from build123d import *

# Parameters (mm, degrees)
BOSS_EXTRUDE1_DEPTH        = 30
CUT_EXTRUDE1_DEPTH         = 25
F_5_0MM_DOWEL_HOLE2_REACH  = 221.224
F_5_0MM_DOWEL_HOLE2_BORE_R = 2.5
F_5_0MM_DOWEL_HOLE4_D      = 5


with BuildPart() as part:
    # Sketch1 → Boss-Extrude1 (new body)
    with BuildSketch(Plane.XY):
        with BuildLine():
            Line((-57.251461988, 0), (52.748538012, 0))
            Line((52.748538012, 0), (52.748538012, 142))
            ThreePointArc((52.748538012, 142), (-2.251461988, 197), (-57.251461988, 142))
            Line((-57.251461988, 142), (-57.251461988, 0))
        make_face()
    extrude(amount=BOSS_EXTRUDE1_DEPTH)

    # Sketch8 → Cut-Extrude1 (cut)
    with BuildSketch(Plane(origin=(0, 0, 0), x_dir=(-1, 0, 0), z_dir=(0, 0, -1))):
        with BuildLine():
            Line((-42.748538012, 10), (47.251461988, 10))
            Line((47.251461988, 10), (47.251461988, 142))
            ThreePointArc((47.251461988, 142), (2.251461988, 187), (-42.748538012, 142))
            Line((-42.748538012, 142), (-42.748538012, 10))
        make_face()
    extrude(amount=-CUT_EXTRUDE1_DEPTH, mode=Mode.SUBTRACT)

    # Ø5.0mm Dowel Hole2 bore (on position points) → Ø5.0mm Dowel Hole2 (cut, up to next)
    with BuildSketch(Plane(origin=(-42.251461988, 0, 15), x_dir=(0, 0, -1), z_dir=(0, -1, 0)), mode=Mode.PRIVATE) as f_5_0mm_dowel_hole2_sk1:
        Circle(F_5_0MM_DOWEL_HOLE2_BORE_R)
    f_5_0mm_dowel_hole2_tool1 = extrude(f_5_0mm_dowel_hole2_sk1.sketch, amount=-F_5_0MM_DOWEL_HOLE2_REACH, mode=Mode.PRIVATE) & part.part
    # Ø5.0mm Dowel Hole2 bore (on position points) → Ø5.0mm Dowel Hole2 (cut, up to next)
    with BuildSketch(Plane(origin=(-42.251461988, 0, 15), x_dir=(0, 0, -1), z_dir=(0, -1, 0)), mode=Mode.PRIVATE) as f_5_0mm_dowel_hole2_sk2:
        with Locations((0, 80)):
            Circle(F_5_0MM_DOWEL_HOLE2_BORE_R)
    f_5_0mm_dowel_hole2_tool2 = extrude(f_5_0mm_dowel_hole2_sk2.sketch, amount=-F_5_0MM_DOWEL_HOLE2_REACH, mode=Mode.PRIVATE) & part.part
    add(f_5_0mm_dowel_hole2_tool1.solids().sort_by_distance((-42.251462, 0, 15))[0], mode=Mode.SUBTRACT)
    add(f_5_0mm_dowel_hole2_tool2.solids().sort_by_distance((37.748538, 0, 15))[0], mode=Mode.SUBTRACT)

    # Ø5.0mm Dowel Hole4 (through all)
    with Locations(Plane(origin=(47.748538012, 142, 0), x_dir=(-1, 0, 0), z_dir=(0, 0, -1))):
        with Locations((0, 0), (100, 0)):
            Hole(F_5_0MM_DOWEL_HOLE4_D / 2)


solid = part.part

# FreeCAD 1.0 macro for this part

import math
import FreeCAD as App
import Part
import Sketcher
from FreeCAD import Vector

doc = App.newDocument("Part")
body = doc.addObject("PartDesign::Body", "Body")

# Sketch on XY plane
sketch1 = doc.addObject("Sketcher::SketchObject", "Sketch")
body.addObject(sketch1)
sketch1.AttachmentSupport = (doc.XY_Plane, [""])
sketch1.MapMode = "FlatFace"
sketch1.addGeometry(Part.LineSegment(Vector(-57, 0, 0), Vector(53, 0, 0)), False)
sketch1.addGeometry(Part.LineSegment(Vector(53, 0, 0), Vector(53, 142, 0)), False)
sketch1.addGeometry(Part.ArcOfCircle(Part.Circle(Vector(-2, 142, 0), Vector(0, 0, 1), 55), math.radians(0), math.radians(180)), False)
sketch1.addGeometry(Part.LineSegment(Vector(-57, 142, 0), Vector(-57, 0, 0)), False)
sketch1.addConstraint(Sketcher.Constraint("Coincident", 0, 2, 1, 1))
sketch1.addConstraint(Sketcher.Constraint("Tangent", 1, 2, 2, 1))
sketch1.addConstraint(Sketcher.Constraint("Tangent", 2, 2, 3, 1))
sketch1.addConstraint(Sketcher.Constraint("Coincident", 3, 2, 0, 1))
sketch1.addConstraint(Sketcher.Constraint("Horizontal", 0))
sketch1.addConstraint(Sketcher.Constraint("Vertical", 1))
sketch1.addConstraint(Sketcher.Constraint("Vertical", 3))
sketch1.addConstraint(Sketcher.Constraint("PointOnObject", 0, 2, -1))
sketch1.addConstraint(Sketcher.Constraint("Radius", 2, 55.0))
sketch1.addConstraint(Sketcher.Constraint("DistanceY", 1, 1, 1, 2, 142.0))
sketch1.addConstraint(Sketcher.Constraint("DistanceX", 2, 3, -1, 1, 2.251462))
pad1 = doc.addObject("PartDesign::Pad", "Pad")
body.addObject(pad1)
pad1.Profile = sketch1
pad1.Length = 30

# Sketch on XY plane
sketch2 = doc.addObject("Sketcher::SketchObject", "Sketch001")
body.addObject(sketch2)
sketch2.AttachmentSupport = (doc.XY_Plane, [""])
sketch2.MapMode = "FlatFace"
sketch2.addGeometry(Part.LineSegment(Vector(43, 10, 0), Vector(-47, 10, 0)), False)
sketch2.addGeometry(Part.LineSegment(Vector(-47, 10, 0), Vector(-47, 142, 0)), False)
sketch2.addGeometry(Part.ArcOfCircle(Part.Circle(Vector(-2, 142, 0), Vector(0, 0, 1), 45), math.radians(0), math.radians(180)), False)
sketch2.addGeometry(Part.LineSegment(Vector(43, 142, 0), Vector(43, 10, 0)), False)
sketch2.addConstraint(Sketcher.Constraint("Coincident", 0, 2, 1, 1))
sketch2.addConstraint(Sketcher.Constraint("Tangent", 1, 2, 2, 2))
sketch2.addConstraint(Sketcher.Constraint("Tangent", 2, 1, 3, 1))
sketch2.addConstraint(Sketcher.Constraint("Coincident", 3, 2, 0, 1))
sketch2.addConstraint(Sketcher.Constraint("Horizontal", 0))
sketch2.addConstraint(Sketcher.Constraint("Vertical", 1))
sketch2.addConstraint(Sketcher.Constraint("Vertical", 3))
sketch2.addConstraint(Sketcher.Constraint("Radius", 2, 45.0))
sketch2.addConstraint(Sketcher.Constraint("DistanceY", 1, 1, 1, 2, 132.0))
sketch2.addConstraint(Sketcher.Constraint("DistanceY", -1, 1, 2, 3, 142.0))
sketch2.addConstraint(Sketcher.Constraint("DistanceX", 2, 3, -1, 1, 2.251462))
pocket1 = doc.addObject("PartDesign::Pocket", "Pocket")
body.addObject(pocket1)
pocket1.Profile = sketch2
pocket1.Length = 25
pocket1.Reversed = True

# Sketch on XZ plane
sketch3 = doc.addObject("Sketcher::SketchObject", "Sketch002")
body.addObject(sketch3)
sketch3.AttachmentSupport = (doc.XZ_Plane, [""])
sketch3.MapMode = "FlatFace"
sketch3.addGeometry(Part.Circle(Vector(-42.3, 15, 0), Vector(0, 0, 1), 2.5), False)
sketch3.addConstraint(Sketcher.Constraint("Diameter", 0, 5.0))
sketch3.addConstraint(Sketcher.Constraint("DistanceY", -1, 1, 0, 3, 15.0))
sketch3.addConstraint(Sketcher.Constraint("DistanceX", 0, 3, -1, 1, 42.251462))
pocket2 = doc.addObject("PartDesign::Pocket", "Pocket001")
body.addObject(pocket2)
pocket2.Profile = sketch3
pocket2.Type = "UpToFirst"

# Sketch on XZ plane
sketch4 = doc.addObject("Sketcher::SketchObject", "Sketch003")
body.addObject(sketch4)
sketch4.AttachmentSupport = (doc.XZ_Plane, [""])
sketch4.MapMode = "FlatFace"
sketch4.addGeometry(Part.Circle(Vector(37.7, 15, 0), Vector(0, 0, 1), 2.5), False)
sketch4.addConstraint(Sketcher.Constraint("Diameter", 0, 5.0))
sketch4.addConstraint(Sketcher.Constraint("DistanceY", -1, 1, 0, 3, 15.0))
sketch4.addConstraint(Sketcher.Constraint("DistanceX", -1, 1, 0, 3, 37.748538))
pocket3 = doc.addObject("PartDesign::Pocket", "Pocket002")
body.addObject(pocket3)
pocket3.Profile = sketch4
pocket3.Type = "UpToFirst"

# Sketch on XY plane
sketch5 = doc.addObject("Sketcher::SketchObject", "Sketch004")
body.addObject(sketch5)
sketch5.AttachmentSupport = (doc.XY_Plane, [""])
sketch5.MapMode = "FlatFace"
sketch5.addGeometry(Part.Circle(Vector(47.7, 142, 0), Vector(0, 0, 1), 2.5), False)
sketch5.addGeometry(Part.Circle(Vector(-52.3, 142, 0), Vector(0, 0, 1), 2.5), False)
sketch5.addConstraint(Sketcher.Constraint("Equal", 0, 1))
sketch5.addConstraint(Sketcher.Constraint("Horizontal", 0, 3, 1, 3))
sketch5.addConstraint(Sketcher.Constraint("Diameter", 0, 5.0))
sketch5.addConstraint(Sketcher.Constraint("DistanceY", -1, 1, 0, 3, 142.0))
sketch5.addConstraint(Sketcher.Constraint("DistanceX", 1, 3, 0, 3, 100.0))
sketch5.addConstraint(Sketcher.Constraint("DistanceX", -1, 1, 0, 3, 47.748538))
doc.recompute()
hole = doc.addObject("PartDesign::Hole", "Hole")
body.addObject(hole)
hole.Profile = sketch5
hole.ThreadType = "None"
hole.Diameter = 5
hole.DepthType = "ThroughAll"
hole.Reversed = True

doc.recompute()
